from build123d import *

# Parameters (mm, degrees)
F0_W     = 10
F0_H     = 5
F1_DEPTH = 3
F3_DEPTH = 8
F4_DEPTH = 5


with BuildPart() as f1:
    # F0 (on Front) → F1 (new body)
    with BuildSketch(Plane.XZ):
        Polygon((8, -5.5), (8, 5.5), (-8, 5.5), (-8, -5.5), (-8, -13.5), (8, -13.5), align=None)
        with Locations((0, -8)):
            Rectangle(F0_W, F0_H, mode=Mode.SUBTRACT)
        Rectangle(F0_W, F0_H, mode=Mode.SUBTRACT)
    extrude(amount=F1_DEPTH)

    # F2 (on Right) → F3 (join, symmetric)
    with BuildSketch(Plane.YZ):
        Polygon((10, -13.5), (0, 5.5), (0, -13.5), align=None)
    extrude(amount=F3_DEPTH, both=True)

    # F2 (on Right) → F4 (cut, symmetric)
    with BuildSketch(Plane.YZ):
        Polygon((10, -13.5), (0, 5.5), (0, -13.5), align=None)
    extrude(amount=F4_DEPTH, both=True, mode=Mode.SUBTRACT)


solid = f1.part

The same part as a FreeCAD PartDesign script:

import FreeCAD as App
import Part
import Sketcher
from FreeCAD import Vector
Q = App.Units.Quantity

doc = App.newDocument("Part")
body = doc.addObject("PartDesign::Body", "Body")

# Sketch on XZ plane
sketch1 = body.newObject("Sketcher::SketchObject", "Sketch")
sketch1.AttachmentSupport = (doc.getObject("XZ_Plane"), [""])
sketch1.MapMode = "FlatFace"
sketch1.addGeometry([
    Part.LineSegment(Vector(8, 6, 0), Vector(-8, 6, 0)),  # 0
    Part.LineSegment(Vector(-8, 6, 0), Vector(-8, -14, 0)),  # 1
    Part.LineSegment(Vector(-8, -14, 0), Vector(8, -14, 0)),  # 2
    Part.LineSegment(Vector(8, -14, 0), Vector(8, 6, 0)),  # 3
    Part.LineSegment(Vector(5, -10, 0), Vector(-5, -10, 0)),  # 4
    Part.LineSegment(Vector(-5, -10, 0), Vector(-5, -6, 0)),  # 5
    Part.LineSegment(Vector(-5, -6, 0), Vector(5, -6, 0)),  # 6
    Part.LineSegment(Vector(5, -6, 0), Vector(5, -10, 0)),  # 7
    Part.LineSegment(Vector(5, -2, 0), Vector(-5, -2, 0)),  # 8
    Part.LineSegment(Vector(-5, -2, 0), Vector(-5, 2, 0)),  # 9
    Part.LineSegment(Vector(-5, 2, 0), Vector(5, 2, 0)),  # 10
    Part.LineSegment(Vector(5, 2, 0), Vector(5, -2, 0)),  # 11
], False)
sketch1.addConstraint([
    Sketcher.Constraint("Coincident", 0, 2, 1, 1),
    Sketcher.Constraint("Coincident", 1, 2, 2, 1),
    Sketcher.Constraint("Coincident", 2, 2, 3, 1),
    Sketcher.Constraint("Coincident", 3, 2, 0, 1),
    Sketcher.Constraint("Coincident", 4, 2, 5, 1),
    Sketcher.Constraint("Coincident", 5, 2, 6, 1),
    Sketcher.Constraint("Coincident", 6, 2, 7, 1),
    Sketcher.Constraint("Coincident", 7, 2, 4, 1),
    Sketcher.Constraint("Coincident", 8, 2, 9, 1),
    Sketcher.Constraint("Coincident", 9, 2, 10, 1),
    Sketcher.Constraint("Coincident", 10, 2, 11, 1),
    Sketcher.Constraint("Coincident", 11, 2, 8, 1),
    Sketcher.Constraint("Horizontal", 0),
    Sketcher.Constraint("Vertical", 1),
    Sketcher.Constraint("Horizontal", 2),
    Sketcher.Constraint("Vertical", 3),
    Sketcher.Constraint("Horizontal", 4),
    Sketcher.Constraint("Vertical", 5),
    Sketcher.Constraint("Horizontal", 6),
    Sketcher.Constraint("Vertical", 7),
    Sketcher.Constraint("Horizontal", 8),
    Sketcher.Constraint("Vertical", 9),
    Sketcher.Constraint("Horizontal", 10),
    Sketcher.Constraint("Vertical", 11),
    Sketcher.Constraint("Symmetric", 8, 2, 10, 2, -1, 1),
    Sketcher.Constraint("Vertical", 5, 2, 8, 2),
    Sketcher.Constraint("Vertical", 7, 2, 10, 2),
    Sketcher.Constraint("Equal", 7, 9),
    Sketcher.Constraint("DistanceX", 0, 2, 0, 1, Q("16 mm")),
    Sketcher.Constraint("DistanceX", 4, 2, 4, 1, Q("10 mm")),
    Sketcher.Constraint("DistanceY", 1, 2, 1, 1, Q("19 mm")),
    Sketcher.Constraint("DistanceY", 5, 1, 5, 2, Q("5 mm")),
    Sketcher.Constraint("DistanceX", 0, 2, -1, 1, Q("8 mm")),
    Sketcher.Constraint("DistanceY", 1, 2, 4, 2, Q("3 mm")),
    Sketcher.Constraint("DistanceY", 5, 2, 8, 2, Q("3 mm")),
])
pad1 = body.newObject("PartDesign::Pad", "Pad")
pad1.Profile = sketch1
pad1.Length = 3

# Sketch on YZ plane
sketch2 = body.newObject("Sketcher::SketchObject", "Sketch001")
sketch2.AttachmentSupport = (doc.getObject("YZ_Plane"), [""])
sketch2.MapMode = "FlatFace"
sketch2.addGeometry([
    Part.LineSegment(Vector(10, -14, 0), Vector(0, 6, 0)),
    Part.LineSegment(Vector(0, 6, 0), Vector(0, -14, 0)),
    Part.LineSegment(Vector(0, -14, 0), Vector(10, -14, 0)),
], False)
sketch2.addConstraint([
    Sketcher.Constraint("Coincident", 0, 2, 1, 1),
    Sketcher.Constraint("Coincident", 1, 2, 2, 1),
    Sketcher.Constraint("Coincident", 2, 2, 0, 1),
    Sketcher.Constraint("Vertical", 1),
    Sketcher.Constraint("Horizontal", 2),
    Sketcher.Constraint("PointOnObject", 0, 2, -2),
    Sketcher.Constraint("DistanceX", 2, 1, 2, 2, Q("10 mm")),
    Sketcher.Constraint("DistanceY", 1, 2, 1, 1, Q("19 mm")),
    Sketcher.Constraint("DistanceY", -1, 1, 0, 2, Q("5.5 mm")),
])
pad2 = body.newObject("PartDesign::Pad", "Pad001")
pad2.Profile = sketch2
pad2.Length = 16
pad2.Midplane = True

# Sketch on YZ plane
sketch3 = body.newObject("Sketcher::SketchObject", "Sketch002")
sketch3.AttachmentSupport = (doc.getObject("YZ_Plane"), [""])
sketch3.MapMode = "FlatFace"
sketch3.addGeometry([
    Part.LineSegment(Vector(10, -14, 0), Vector(0, 6, 0)),
    Part.LineSegment(Vector(0, 6, 0), Vector(0, -14, 0)),
    Part.LineSegment(Vector(0, -14, 0), Vector(10, -14, 0)),
], False)
sketch3.addConstraint([
    Sketcher.Constraint("Coincident", 0, 2, 1, 1),
    Sketcher.Constraint("Coincident", 1, 2, 2, 1),
    Sketcher.Constraint("Coincident", 2, 2, 0, 1),
    Sketcher.Constraint("Vertical", 1),
    Sketcher.Constraint("Horizontal", 2),
    Sketcher.Constraint("PointOnObject", 0, 2, -2),
    Sketcher.Constraint("DistanceX", 2, 1, 2, 2, Q("10 mm")),
    Sketcher.Constraint("DistanceY", 1, 2, 1, 1, Q("19 mm")),
    Sketcher.Constraint("DistanceY", -1, 1, 0, 2, Q("5.5 mm")),
])
pocket1 = body.newObject("PartDesign::Pocket", "Pocket")
pocket1.Profile = sketch3
pocket1.Length = 10
pocket1.Midplane = True

doc.recompute()
